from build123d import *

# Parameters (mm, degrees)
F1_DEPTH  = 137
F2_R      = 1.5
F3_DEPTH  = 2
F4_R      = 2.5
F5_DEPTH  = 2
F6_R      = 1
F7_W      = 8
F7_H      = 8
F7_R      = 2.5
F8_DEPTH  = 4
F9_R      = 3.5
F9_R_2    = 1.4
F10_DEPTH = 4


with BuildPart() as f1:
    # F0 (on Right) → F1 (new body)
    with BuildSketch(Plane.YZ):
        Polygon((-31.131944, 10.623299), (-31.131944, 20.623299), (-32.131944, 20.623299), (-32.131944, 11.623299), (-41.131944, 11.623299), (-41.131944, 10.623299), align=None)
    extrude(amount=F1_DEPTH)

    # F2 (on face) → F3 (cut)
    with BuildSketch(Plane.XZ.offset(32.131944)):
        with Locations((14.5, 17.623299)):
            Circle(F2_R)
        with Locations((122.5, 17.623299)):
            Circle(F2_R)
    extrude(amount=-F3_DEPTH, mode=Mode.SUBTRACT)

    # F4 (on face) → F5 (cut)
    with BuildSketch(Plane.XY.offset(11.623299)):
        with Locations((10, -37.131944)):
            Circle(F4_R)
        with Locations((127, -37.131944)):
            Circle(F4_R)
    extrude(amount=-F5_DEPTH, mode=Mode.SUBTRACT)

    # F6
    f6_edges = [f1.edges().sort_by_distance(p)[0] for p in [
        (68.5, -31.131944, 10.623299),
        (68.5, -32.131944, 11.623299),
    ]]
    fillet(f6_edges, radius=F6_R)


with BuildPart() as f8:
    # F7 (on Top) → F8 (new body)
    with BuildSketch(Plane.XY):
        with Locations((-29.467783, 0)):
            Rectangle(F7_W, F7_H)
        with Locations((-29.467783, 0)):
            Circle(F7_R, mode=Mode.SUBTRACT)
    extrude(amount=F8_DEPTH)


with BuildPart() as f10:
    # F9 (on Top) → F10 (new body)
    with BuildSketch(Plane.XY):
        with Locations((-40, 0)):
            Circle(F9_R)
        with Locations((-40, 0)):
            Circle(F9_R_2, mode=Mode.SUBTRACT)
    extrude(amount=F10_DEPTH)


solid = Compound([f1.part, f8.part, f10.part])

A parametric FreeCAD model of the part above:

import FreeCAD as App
import Part
import Sketcher
from FreeCAD import Vector
Q = App.Units.Quantity


def edges_at(feature, points):
    """Names of the edges that pass closest to the given points."""
    edges = feature.Shape.Edges
    near = lambda p: min(range(len(edges)), key=lambda i: edges[i].distToShape(Part.Vertex(*p))[0])
    return sorted({f"Edge{near(p) + 1}" for p in points})


def add_polygon(sketch, points):
    """Adds a closed chain of lines whose ends are joined by coincident constraints."""
    first, n = sketch.GeometryCount, len(points)
    for a, b in zip(points, points[1:] + points[:1]):
        sketch.addGeometry(Part.LineSegment(App.Vector(*a, 0), App.Vector(*b, 0)), False)
    for i in range(n):
        sketch.addConstraint(Sketcher.Constraint("Coincident", first + i, 2, first + (i + 1) % n, 1))

doc = App.newDocument("Part")
body = doc.addObject("PartDesign::Body", "Body")

# Sketch on YZ plane
sketch1 = body.newObject("Sketcher::SketchObject", "Sketch")
sketch1.AttachmentSupport = (doc.getObject("YZ_Plane"), [""])
sketch1.MapMode = "FlatFace"
add_polygon(sketch1, [(-31.1, 10.6), (-31.1, 20.6), (-32.1, 20.6), (-32.1, 11.6), (-41.1, 11.6), (-41.1, 10.6)])  # lines 0-5
sketch1.addConstraint([
    Sketcher.Constraint("Vertical", 0),
    Sketcher.Constraint("Horizontal", 1),
    Sketcher.Constraint("Vertical", 2),
    Sketcher.Constraint("Horizontal", 3),
    Sketcher.Constraint("Vertical", 4),
    Sketcher.Constraint("Horizontal", 5),
    Sketcher.Constraint("Equal", 5, 0),
    Sketcher.Constraint("Equal", 3, 2),
    Sketcher.Constraint("DistanceX", 1, 2, 1, 1, Q("1 mm")),
    Sketcher.Constraint("DistanceX", 3, 2, 3, 1, Q("9 mm")),
    Sketcher.Constraint("DistanceY", -1, 1, 0, 2, Q("20.623299 mm")),
    Sketcher.Constraint("DistanceX", 0, 2, -1, 1, Q("31.131944 mm")),
])
pad1 = body.newObject("PartDesign::Pad", "Pad")
pad1.Profile = sketch1
pad1.Length = 137

# Sketch on XZ plane
sketch2 = body.newObject("Sketcher::SketchObject", "Sketch001")
sketch2.AttachmentSupport = (doc.getObject("XZ_Plane"), [""])
sketch2.MapMode = "FlatFace"
sketch2.AttachmentOffset = App.Placement(Vector(0, 0, 32.131944), App.Rotation())
sketch2.addGeometry([
    Part.Circle(Vector(14.5, 17.6, 0), Vector(0, 0, 1), 1.5),
    Part.Circle(Vector(122.5, 17.6, 0), Vector(0, 0, 1), 1.5),
], False)
sketch2.addConstraint([
    Sketcher.Constraint("Equal", 0, 1),
    Sketcher.Constraint("Horizontal", 0, 3, 1, 3),
    Sketcher.Constraint("Diameter", 0, Q("3 mm")),
    Sketcher.Constraint("DistanceX", 0, 3, 1, 3, Q("108 mm")),
    Sketcher.Constraint("DistanceX", -1, 1, 0, 3, Q("14.5 mm")),
    Sketcher.Constraint("DistanceY", -1, 1, 0, 3, Q("17.623299 mm")),
])
pocket1 = body.newObject("PartDesign::Pocket", "Pocket")
pocket1.Profile = sketch2
pocket1.Length = 2

# Sketch on XY plane
sketch3 = body.newObject("Sketcher::SketchObject", "Sketch002")
sketch3.AttachmentSupport = (doc.getObject("XY_Plane"), [""])
sketch3.MapMode = "FlatFace"
sketch3.AttachmentOffset = App.Placement(Vector(0, 0, 11.623299), App.Rotation())
sketch3.addGeometry([
    Part.Circle(Vector(10, -37.1, 0), Vector(0, 0, 1), 2.5),
    Part.Circle(Vector(127, -37.1, 0), Vector(0, 0, 1), 2.5),
], False)
sketch3.addConstraint([
    Sketcher.Constraint("Equal", 0, 1),
    Sketcher.Constraint("Horizontal", 0, 3, 1, 3),
    Sketcher.Constraint("Diameter", 0, Q("5 mm")),
    Sketcher.Constraint("DistanceX", -1, 1, 0, 3, Q("10 mm")),
    Sketcher.Constraint("DistanceX", -1, 1, 1, 3, Q("127 mm")),
    Sketcher.Constraint("DistanceY", 0, 3, -1, 1, Q("37.131944 mm")),
])
pocket2 = body.newObject("PartDesign::Pocket", "Pocket001")
pocket2.Profile = sketch3
pocket2.Length = 2
doc.recompute()

fillet = body.newObject("PartDesign::Fillet", "Fillet")
fillet.Base = (pocket2, edges_at(pocket2, [(68.5, -31.132, 10.623), (68.5, -32.132, 11.623)]))
fillet.Radius = 1
body2 = doc.addObject("PartDesign::Body", "Body001")

# Sketch on XY plane
sketch4 = body2.newObject("Sketcher::SketchObject", "Sketch003")
sketch4.AttachmentSupport = (doc.getObject("XY_Plane001"), [""])
sketch4.MapMode = "FlatFace"
add_polygon(sketch4, [(-33.5, 4), (-33.5, -4), (-25.5, -4), (-25.5, 4)])  # lines 0-3
sketch4.addGeometry(Part.Circle(Vector(-29.5, 0, 0), Vector(0, 0, 1), 2.5), False)  # 4
sketch4.addConstraint([
    Sketcher.Constraint("Vertical", 0),
    Sketcher.Constraint("Horizontal", 1),
    Sketcher.Constraint("Vertical", 2),
    Sketcher.Constraint("Horizontal", 3),
    Sketcher.Constraint("PointOnObject", 4, 3, -1),
    Sketcher.Constraint("Equal", 3, 0),
    Sketcher.Constraint("Diameter", 4, Q("5 mm")),
    Sketcher.Constraint("DistanceX", 1, 1, 1, 2, Q("8 mm")),
    Sketcher.Constraint("DistanceY", 0, 2, -1, 1, Q("4 mm")),
    Sketcher.Constraint("DistanceX", 0, 2, 4, 3, Q("4 mm")),
    Sketcher.Constraint("DistanceX", 4, 3, -1, 1, Q("29.467783 mm")),
])
pad2 = body2.newObject("PartDesign::Pad", "Pad001")
pad2.Profile = sketch4
pad2.Length = 4
body3 = doc.addObject("PartDesign::Body", "Body002")

# Sketch on XY plane
sketch5 = body3.newObject("Sketcher::SketchObject", "Sketch004")
sketch5.AttachmentSupport = (doc.getObject("XY_Plane002"), [""])
sketch5.MapMode = "FlatFace"
sketch5.addGeometry([
    Part.Circle(Vector(-40, 0, 0), Vector(0, 0, 1), 3.5),
    Part.Circle(Vector(-40, 0, 0), Vector(0, 0, 1), 1.4),
], False)
sketch5.addConstraint([
    Sketcher.Constraint("Coincident", 1, 3, 0, 3),
    Sketcher.Constraint("PointOnObject", 0, 3, -1),
    Sketcher.Constraint("Diameter", 0, Q("7 mm")),
    Sketcher.Constraint("Diameter", 1, Q("2.8 mm")),
    Sketcher.Constraint("DistanceX", 0, 3, -1, 1, Q("40 mm")),
])
pad3 = body3.newObject("PartDesign::Pad", "Pad002")
pad3.Profile = sketch5
pad3.Length = 4

doc.recompute()
